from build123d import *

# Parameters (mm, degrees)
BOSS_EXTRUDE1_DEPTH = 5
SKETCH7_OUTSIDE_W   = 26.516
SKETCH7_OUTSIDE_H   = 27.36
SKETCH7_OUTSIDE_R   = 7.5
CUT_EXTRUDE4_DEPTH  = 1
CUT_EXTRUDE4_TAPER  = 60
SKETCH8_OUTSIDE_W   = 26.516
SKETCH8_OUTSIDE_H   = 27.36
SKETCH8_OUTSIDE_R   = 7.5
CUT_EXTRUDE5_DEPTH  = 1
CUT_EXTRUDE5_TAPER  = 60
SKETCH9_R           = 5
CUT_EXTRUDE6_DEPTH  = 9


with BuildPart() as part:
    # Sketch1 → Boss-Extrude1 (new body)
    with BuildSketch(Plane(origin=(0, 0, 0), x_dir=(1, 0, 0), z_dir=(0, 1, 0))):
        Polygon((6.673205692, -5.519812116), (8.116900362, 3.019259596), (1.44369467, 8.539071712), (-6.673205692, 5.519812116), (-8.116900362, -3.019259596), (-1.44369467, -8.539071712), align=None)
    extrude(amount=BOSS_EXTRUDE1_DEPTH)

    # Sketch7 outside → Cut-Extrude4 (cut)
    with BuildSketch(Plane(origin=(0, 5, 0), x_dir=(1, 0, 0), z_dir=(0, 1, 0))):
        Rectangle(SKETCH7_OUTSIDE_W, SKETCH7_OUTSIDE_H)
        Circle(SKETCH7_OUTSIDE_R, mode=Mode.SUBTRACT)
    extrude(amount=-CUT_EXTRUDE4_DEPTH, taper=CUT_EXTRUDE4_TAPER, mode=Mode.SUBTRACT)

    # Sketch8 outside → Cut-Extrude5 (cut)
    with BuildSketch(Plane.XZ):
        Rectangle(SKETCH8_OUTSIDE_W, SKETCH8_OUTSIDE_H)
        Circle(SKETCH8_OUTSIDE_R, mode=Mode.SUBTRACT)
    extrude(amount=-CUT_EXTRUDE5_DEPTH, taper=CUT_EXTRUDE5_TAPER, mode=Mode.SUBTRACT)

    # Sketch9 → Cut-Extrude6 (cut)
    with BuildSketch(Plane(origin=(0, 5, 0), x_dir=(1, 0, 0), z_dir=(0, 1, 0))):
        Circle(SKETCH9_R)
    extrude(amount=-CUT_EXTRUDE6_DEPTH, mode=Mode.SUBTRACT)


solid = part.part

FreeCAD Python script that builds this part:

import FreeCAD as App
import Part
import Sketcher

V = App.Vector
Q = App.Units.Quantity

doc = App.newDocument("Part")
body = doc.addObject("PartDesign::Body", "Body")

# Sketch on XZ plane
sketch1 = body.newObject("Sketcher::SketchObject", "Sketch")
sketch1.AttachmentSupport = (doc.getObject("XZ_Plane"), [""])
sketch1.MapMode = "FlatFace"
sketch1.addGeometry(Part.LineSegment(V(7, 6, 0), V(8, -3, 0)), False)
sketch1.addGeometry(Part.LineSegment(V(8, -3, 0), V(1, -9, 0)), False)
sketch1.addGeometry(Part.LineSegment(V(1, -9, 0), V(-7, -6, 0)), False)
sketch1.addGeometry(Part.LineSegment(V(-7, -6, 0), V(-8, 3, 0)), False)
sketch1.addGeometry(Part.LineSegment(V(-8, 3, 0), V(-1, 9, 0)), False)
sketch1.addGeometry(Part.LineSegment(V(-1, 9, 0), V(7, 6, 0)), False)
sketch1.addConstraint(Sketcher.Constraint("Coincident", 0, 2, 1, 1))
sketch1.addConstraint(Sketcher.Constraint("Coincident", 1, 2, 2, 1))
sketch1.addConstraint(Sketcher.Constraint("Coincident", 2, 2, 3, 1))
sketch1.addConstraint(Sketcher.Constraint("Coincident", 3, 2, 4, 1))
sketch1.addConstraint(Sketcher.Constraint("Coincident", 4, 2, 5, 1))
sketch1.addConstraint(Sketcher.Constraint("Coincident", 5, 2, 0, 1))
sketch1.addConstraint(Sketcher.Constraint("Symmetric", 0, 2, 3, 2, -1, 1))
sketch1.addConstraint(Sketcher.Constraint("Symmetric", 1, 2, 4, 2, -1, 1))
sketch1.addConstraint(Sketcher.Constraint("Symmetric", 2, 2, 5, 2, -1, 1))
sketch1.addConstraint(Sketcher.Constraint("Equal", 0, 1))
sketch1.addConstraint(Sketcher.Constraint("Equal", 1, 2))
sketch1.addConstraint(Sketcher.Constraint("DistanceX", -1, 1, 0, 2, Q("8.1169 mm")))
sketch1.addConstraint(Sketcher.Constraint("DistanceX", 2, 2, 1, 2, Q("8.1169 mm")))
sketch1.addConstraint(Sketcher.Constraint("DistanceY", 0, 2, -1, 1, Q("3.01926 mm")))
sketch1.addConstraint(Sketcher.Constraint("DistanceY", 1, 2, -1, 1, Q("8.539072 mm")))
pad1 = body.newObject("PartDesign::Pad", "Pad")
pad1.Profile = sketch1
pad1.Length = 5
pad1.Reversed = True

# Sketch on XZ plane
sketch2 = body.newObject("Sketcher::SketchObject", "Sketch001")
sketch2.AttachmentSupport = (doc.getObject("XZ_Plane"), [""])
sketch2.MapMode = "FlatFace"
sketch2.AttachmentOffset = App.Placement(V(0, 0, -5), App.Rotation())
sketch2.addGeometry(Part.LineSegment(V(-13, -14, 0), V(-13, 14, 0)), False)
sketch2.addGeometry(Part.LineSegment(V(-13, 14, 0), V(13, 14, 0)), False)
sketch2.addGeometry(Part.LineSegment(V(13, 14, 0), V(13, -14, 0)), False)
sketch2.addGeometry(Part.LineSegment(V(13, -14, 0), V(-13, -14, 0)), False)
sketch2.addGeometry(Part.Circle(V(0, 0, 0), V(0, 0, 1), 8), False)
sketch2.addConstraint(Sketcher.Constraint("Coincident", 0, 2, 1, 1))
sketch2.addConstraint(Sketcher.Constraint("Coincident", 1, 2, 2, 1))
sketch2.addConstraint(Sketcher.Constraint("Coincident", 2, 2, 3, 1))
sketch2.addConstraint(Sketcher.Constraint("Coincident", 3, 2, 0, 1))
sketch2.addConstraint(Sketcher.Constraint("Vertical", 0))
sketch2.addConstraint(Sketcher.Constraint("Horizontal", 1))
sketch2.addConstraint(Sketcher.Constraint("Vertical", 2))
sketch2.addConstraint(Sketcher.Constraint("Horizontal", 3))
sketch2.addConstraint(Sketcher.Constraint("Coincident", 4, 3, -1, 1))
sketch2.addConstraint(Sketcher.Constraint("Symmetric", 0, 2, 2, 2, -1, 1))
sketch2.addConstraint(Sketcher.Constraint("Diameter", 4, Q("15 mm")))
sketch2.addConstraint(Sketcher.Constraint("DistanceY", 0, 1, 0, 2, Q("27.36 mm")))
sketch2.addConstraint(Sketcher.Constraint("DistanceX", 1, 1, 1, 2, Q("26.516 mm")))
pocket1 = body.newObject("PartDesign::Pocket", "Pocket")
pocket1.Profile = sketch2
pocket1.Length = 1
pocket1.Reversed = True
pocket1.TaperAngle = 60

# Sketch on XZ plane
sketch3 = body.newObject("Sketcher::SketchObject", "Sketch002")
sketch3.AttachmentSupport = (doc.getObject("XZ_Plane"), [""])
sketch3.MapMode = "FlatFace"
sketch3.addGeometry(Part.LineSegment(V(-13, 14, 0), V(-13, -14, 0)), False)
sketch3.addGeometry(Part.LineSegment(V(-13, -14, 0), V(13, -14, 0)), False)
sketch3.addGeometry(Part.LineSegment(V(13, -14, 0), V(13, 14, 0)), False)
sketch3.addGeometry(Part.LineSegment(V(13, 14, 0), V(-13, 14, 0)), False)
sketch3.addGeometry(Part.Circle(V(0, 0, 0), V(0, 0, 1), 8), False)
sketch3.addConstraint(Sketcher.Constraint("Coincident", 0, 2, 1, 1))
sketch3.addConstraint(Sketcher.Constraint("Coincident", 1, 2, 2, 1))
sketch3.addConstraint(Sketcher.Constraint("Coincident", 2, 2, 3, 1))
sketch3.addConstraint(Sketcher.Constraint("Coincident", 3, 2, 0, 1))
sketch3.addConstraint(Sketcher.Constraint("Vertical", 0))
sketch3.addConstraint(Sketcher.Constraint("Horizontal", 1))
sketch3.addConstraint(Sketcher.Constraint("Vertical", 2))
sketch3.addConstraint(Sketcher.Constraint("Horizontal", 3))
sketch3.addConstraint(Sketcher.Constraint("Coincident", 4, 3, -1, 1))
sketch3.addConstraint(Sketcher.Constraint("Symmetric", 0, 2, 2, 2, -1, 1))
sketch3.addConstraint(Sketcher.Constraint("Diameter", 4, Q("15 mm")))
sketch3.addConstraint(Sketcher.Constraint("DistanceY", 0, 2, 0, 1, Q("27.36 mm")))
sketch3.addConstraint(Sketcher.Constraint("DistanceX", 1, 1, 1, 2, Q("26.516 mm")))
pocket2 = body.newObject("PartDesign::Pocket", "Pocket001")
pocket2.Profile = sketch3
pocket2.Length = 1
pocket2.TaperAngle = 60

# Sketch on XZ plane
sketch4 = body.newObject("Sketcher::SketchObject", "Sketch003")
sketch4.AttachmentSupport = (doc.getObject("XZ_Plane"), [""])
sketch4.MapMode = "FlatFace"
sketch4.AttachmentOffset = App.Placement(V(0, 0, -5), App.Rotation())
sketch4.addGeometry(Part.Circle(V(0, 0, 0), V(0, 0, 1), 5), False)
sketch4.addConstraint(Sketcher.Constraint("Coincident", 0, 3, -1, 1))
sketch4.addConstraint(Sketcher.Constraint("Diameter", 0, Q("10 mm")))
pocket3 = body.newObject("PartDesign::Pocket", "Pocket002")
pocket3.Profile = sketch4
pocket3.Length = 9
pocket3.Reversed = True

doc.recompute()
